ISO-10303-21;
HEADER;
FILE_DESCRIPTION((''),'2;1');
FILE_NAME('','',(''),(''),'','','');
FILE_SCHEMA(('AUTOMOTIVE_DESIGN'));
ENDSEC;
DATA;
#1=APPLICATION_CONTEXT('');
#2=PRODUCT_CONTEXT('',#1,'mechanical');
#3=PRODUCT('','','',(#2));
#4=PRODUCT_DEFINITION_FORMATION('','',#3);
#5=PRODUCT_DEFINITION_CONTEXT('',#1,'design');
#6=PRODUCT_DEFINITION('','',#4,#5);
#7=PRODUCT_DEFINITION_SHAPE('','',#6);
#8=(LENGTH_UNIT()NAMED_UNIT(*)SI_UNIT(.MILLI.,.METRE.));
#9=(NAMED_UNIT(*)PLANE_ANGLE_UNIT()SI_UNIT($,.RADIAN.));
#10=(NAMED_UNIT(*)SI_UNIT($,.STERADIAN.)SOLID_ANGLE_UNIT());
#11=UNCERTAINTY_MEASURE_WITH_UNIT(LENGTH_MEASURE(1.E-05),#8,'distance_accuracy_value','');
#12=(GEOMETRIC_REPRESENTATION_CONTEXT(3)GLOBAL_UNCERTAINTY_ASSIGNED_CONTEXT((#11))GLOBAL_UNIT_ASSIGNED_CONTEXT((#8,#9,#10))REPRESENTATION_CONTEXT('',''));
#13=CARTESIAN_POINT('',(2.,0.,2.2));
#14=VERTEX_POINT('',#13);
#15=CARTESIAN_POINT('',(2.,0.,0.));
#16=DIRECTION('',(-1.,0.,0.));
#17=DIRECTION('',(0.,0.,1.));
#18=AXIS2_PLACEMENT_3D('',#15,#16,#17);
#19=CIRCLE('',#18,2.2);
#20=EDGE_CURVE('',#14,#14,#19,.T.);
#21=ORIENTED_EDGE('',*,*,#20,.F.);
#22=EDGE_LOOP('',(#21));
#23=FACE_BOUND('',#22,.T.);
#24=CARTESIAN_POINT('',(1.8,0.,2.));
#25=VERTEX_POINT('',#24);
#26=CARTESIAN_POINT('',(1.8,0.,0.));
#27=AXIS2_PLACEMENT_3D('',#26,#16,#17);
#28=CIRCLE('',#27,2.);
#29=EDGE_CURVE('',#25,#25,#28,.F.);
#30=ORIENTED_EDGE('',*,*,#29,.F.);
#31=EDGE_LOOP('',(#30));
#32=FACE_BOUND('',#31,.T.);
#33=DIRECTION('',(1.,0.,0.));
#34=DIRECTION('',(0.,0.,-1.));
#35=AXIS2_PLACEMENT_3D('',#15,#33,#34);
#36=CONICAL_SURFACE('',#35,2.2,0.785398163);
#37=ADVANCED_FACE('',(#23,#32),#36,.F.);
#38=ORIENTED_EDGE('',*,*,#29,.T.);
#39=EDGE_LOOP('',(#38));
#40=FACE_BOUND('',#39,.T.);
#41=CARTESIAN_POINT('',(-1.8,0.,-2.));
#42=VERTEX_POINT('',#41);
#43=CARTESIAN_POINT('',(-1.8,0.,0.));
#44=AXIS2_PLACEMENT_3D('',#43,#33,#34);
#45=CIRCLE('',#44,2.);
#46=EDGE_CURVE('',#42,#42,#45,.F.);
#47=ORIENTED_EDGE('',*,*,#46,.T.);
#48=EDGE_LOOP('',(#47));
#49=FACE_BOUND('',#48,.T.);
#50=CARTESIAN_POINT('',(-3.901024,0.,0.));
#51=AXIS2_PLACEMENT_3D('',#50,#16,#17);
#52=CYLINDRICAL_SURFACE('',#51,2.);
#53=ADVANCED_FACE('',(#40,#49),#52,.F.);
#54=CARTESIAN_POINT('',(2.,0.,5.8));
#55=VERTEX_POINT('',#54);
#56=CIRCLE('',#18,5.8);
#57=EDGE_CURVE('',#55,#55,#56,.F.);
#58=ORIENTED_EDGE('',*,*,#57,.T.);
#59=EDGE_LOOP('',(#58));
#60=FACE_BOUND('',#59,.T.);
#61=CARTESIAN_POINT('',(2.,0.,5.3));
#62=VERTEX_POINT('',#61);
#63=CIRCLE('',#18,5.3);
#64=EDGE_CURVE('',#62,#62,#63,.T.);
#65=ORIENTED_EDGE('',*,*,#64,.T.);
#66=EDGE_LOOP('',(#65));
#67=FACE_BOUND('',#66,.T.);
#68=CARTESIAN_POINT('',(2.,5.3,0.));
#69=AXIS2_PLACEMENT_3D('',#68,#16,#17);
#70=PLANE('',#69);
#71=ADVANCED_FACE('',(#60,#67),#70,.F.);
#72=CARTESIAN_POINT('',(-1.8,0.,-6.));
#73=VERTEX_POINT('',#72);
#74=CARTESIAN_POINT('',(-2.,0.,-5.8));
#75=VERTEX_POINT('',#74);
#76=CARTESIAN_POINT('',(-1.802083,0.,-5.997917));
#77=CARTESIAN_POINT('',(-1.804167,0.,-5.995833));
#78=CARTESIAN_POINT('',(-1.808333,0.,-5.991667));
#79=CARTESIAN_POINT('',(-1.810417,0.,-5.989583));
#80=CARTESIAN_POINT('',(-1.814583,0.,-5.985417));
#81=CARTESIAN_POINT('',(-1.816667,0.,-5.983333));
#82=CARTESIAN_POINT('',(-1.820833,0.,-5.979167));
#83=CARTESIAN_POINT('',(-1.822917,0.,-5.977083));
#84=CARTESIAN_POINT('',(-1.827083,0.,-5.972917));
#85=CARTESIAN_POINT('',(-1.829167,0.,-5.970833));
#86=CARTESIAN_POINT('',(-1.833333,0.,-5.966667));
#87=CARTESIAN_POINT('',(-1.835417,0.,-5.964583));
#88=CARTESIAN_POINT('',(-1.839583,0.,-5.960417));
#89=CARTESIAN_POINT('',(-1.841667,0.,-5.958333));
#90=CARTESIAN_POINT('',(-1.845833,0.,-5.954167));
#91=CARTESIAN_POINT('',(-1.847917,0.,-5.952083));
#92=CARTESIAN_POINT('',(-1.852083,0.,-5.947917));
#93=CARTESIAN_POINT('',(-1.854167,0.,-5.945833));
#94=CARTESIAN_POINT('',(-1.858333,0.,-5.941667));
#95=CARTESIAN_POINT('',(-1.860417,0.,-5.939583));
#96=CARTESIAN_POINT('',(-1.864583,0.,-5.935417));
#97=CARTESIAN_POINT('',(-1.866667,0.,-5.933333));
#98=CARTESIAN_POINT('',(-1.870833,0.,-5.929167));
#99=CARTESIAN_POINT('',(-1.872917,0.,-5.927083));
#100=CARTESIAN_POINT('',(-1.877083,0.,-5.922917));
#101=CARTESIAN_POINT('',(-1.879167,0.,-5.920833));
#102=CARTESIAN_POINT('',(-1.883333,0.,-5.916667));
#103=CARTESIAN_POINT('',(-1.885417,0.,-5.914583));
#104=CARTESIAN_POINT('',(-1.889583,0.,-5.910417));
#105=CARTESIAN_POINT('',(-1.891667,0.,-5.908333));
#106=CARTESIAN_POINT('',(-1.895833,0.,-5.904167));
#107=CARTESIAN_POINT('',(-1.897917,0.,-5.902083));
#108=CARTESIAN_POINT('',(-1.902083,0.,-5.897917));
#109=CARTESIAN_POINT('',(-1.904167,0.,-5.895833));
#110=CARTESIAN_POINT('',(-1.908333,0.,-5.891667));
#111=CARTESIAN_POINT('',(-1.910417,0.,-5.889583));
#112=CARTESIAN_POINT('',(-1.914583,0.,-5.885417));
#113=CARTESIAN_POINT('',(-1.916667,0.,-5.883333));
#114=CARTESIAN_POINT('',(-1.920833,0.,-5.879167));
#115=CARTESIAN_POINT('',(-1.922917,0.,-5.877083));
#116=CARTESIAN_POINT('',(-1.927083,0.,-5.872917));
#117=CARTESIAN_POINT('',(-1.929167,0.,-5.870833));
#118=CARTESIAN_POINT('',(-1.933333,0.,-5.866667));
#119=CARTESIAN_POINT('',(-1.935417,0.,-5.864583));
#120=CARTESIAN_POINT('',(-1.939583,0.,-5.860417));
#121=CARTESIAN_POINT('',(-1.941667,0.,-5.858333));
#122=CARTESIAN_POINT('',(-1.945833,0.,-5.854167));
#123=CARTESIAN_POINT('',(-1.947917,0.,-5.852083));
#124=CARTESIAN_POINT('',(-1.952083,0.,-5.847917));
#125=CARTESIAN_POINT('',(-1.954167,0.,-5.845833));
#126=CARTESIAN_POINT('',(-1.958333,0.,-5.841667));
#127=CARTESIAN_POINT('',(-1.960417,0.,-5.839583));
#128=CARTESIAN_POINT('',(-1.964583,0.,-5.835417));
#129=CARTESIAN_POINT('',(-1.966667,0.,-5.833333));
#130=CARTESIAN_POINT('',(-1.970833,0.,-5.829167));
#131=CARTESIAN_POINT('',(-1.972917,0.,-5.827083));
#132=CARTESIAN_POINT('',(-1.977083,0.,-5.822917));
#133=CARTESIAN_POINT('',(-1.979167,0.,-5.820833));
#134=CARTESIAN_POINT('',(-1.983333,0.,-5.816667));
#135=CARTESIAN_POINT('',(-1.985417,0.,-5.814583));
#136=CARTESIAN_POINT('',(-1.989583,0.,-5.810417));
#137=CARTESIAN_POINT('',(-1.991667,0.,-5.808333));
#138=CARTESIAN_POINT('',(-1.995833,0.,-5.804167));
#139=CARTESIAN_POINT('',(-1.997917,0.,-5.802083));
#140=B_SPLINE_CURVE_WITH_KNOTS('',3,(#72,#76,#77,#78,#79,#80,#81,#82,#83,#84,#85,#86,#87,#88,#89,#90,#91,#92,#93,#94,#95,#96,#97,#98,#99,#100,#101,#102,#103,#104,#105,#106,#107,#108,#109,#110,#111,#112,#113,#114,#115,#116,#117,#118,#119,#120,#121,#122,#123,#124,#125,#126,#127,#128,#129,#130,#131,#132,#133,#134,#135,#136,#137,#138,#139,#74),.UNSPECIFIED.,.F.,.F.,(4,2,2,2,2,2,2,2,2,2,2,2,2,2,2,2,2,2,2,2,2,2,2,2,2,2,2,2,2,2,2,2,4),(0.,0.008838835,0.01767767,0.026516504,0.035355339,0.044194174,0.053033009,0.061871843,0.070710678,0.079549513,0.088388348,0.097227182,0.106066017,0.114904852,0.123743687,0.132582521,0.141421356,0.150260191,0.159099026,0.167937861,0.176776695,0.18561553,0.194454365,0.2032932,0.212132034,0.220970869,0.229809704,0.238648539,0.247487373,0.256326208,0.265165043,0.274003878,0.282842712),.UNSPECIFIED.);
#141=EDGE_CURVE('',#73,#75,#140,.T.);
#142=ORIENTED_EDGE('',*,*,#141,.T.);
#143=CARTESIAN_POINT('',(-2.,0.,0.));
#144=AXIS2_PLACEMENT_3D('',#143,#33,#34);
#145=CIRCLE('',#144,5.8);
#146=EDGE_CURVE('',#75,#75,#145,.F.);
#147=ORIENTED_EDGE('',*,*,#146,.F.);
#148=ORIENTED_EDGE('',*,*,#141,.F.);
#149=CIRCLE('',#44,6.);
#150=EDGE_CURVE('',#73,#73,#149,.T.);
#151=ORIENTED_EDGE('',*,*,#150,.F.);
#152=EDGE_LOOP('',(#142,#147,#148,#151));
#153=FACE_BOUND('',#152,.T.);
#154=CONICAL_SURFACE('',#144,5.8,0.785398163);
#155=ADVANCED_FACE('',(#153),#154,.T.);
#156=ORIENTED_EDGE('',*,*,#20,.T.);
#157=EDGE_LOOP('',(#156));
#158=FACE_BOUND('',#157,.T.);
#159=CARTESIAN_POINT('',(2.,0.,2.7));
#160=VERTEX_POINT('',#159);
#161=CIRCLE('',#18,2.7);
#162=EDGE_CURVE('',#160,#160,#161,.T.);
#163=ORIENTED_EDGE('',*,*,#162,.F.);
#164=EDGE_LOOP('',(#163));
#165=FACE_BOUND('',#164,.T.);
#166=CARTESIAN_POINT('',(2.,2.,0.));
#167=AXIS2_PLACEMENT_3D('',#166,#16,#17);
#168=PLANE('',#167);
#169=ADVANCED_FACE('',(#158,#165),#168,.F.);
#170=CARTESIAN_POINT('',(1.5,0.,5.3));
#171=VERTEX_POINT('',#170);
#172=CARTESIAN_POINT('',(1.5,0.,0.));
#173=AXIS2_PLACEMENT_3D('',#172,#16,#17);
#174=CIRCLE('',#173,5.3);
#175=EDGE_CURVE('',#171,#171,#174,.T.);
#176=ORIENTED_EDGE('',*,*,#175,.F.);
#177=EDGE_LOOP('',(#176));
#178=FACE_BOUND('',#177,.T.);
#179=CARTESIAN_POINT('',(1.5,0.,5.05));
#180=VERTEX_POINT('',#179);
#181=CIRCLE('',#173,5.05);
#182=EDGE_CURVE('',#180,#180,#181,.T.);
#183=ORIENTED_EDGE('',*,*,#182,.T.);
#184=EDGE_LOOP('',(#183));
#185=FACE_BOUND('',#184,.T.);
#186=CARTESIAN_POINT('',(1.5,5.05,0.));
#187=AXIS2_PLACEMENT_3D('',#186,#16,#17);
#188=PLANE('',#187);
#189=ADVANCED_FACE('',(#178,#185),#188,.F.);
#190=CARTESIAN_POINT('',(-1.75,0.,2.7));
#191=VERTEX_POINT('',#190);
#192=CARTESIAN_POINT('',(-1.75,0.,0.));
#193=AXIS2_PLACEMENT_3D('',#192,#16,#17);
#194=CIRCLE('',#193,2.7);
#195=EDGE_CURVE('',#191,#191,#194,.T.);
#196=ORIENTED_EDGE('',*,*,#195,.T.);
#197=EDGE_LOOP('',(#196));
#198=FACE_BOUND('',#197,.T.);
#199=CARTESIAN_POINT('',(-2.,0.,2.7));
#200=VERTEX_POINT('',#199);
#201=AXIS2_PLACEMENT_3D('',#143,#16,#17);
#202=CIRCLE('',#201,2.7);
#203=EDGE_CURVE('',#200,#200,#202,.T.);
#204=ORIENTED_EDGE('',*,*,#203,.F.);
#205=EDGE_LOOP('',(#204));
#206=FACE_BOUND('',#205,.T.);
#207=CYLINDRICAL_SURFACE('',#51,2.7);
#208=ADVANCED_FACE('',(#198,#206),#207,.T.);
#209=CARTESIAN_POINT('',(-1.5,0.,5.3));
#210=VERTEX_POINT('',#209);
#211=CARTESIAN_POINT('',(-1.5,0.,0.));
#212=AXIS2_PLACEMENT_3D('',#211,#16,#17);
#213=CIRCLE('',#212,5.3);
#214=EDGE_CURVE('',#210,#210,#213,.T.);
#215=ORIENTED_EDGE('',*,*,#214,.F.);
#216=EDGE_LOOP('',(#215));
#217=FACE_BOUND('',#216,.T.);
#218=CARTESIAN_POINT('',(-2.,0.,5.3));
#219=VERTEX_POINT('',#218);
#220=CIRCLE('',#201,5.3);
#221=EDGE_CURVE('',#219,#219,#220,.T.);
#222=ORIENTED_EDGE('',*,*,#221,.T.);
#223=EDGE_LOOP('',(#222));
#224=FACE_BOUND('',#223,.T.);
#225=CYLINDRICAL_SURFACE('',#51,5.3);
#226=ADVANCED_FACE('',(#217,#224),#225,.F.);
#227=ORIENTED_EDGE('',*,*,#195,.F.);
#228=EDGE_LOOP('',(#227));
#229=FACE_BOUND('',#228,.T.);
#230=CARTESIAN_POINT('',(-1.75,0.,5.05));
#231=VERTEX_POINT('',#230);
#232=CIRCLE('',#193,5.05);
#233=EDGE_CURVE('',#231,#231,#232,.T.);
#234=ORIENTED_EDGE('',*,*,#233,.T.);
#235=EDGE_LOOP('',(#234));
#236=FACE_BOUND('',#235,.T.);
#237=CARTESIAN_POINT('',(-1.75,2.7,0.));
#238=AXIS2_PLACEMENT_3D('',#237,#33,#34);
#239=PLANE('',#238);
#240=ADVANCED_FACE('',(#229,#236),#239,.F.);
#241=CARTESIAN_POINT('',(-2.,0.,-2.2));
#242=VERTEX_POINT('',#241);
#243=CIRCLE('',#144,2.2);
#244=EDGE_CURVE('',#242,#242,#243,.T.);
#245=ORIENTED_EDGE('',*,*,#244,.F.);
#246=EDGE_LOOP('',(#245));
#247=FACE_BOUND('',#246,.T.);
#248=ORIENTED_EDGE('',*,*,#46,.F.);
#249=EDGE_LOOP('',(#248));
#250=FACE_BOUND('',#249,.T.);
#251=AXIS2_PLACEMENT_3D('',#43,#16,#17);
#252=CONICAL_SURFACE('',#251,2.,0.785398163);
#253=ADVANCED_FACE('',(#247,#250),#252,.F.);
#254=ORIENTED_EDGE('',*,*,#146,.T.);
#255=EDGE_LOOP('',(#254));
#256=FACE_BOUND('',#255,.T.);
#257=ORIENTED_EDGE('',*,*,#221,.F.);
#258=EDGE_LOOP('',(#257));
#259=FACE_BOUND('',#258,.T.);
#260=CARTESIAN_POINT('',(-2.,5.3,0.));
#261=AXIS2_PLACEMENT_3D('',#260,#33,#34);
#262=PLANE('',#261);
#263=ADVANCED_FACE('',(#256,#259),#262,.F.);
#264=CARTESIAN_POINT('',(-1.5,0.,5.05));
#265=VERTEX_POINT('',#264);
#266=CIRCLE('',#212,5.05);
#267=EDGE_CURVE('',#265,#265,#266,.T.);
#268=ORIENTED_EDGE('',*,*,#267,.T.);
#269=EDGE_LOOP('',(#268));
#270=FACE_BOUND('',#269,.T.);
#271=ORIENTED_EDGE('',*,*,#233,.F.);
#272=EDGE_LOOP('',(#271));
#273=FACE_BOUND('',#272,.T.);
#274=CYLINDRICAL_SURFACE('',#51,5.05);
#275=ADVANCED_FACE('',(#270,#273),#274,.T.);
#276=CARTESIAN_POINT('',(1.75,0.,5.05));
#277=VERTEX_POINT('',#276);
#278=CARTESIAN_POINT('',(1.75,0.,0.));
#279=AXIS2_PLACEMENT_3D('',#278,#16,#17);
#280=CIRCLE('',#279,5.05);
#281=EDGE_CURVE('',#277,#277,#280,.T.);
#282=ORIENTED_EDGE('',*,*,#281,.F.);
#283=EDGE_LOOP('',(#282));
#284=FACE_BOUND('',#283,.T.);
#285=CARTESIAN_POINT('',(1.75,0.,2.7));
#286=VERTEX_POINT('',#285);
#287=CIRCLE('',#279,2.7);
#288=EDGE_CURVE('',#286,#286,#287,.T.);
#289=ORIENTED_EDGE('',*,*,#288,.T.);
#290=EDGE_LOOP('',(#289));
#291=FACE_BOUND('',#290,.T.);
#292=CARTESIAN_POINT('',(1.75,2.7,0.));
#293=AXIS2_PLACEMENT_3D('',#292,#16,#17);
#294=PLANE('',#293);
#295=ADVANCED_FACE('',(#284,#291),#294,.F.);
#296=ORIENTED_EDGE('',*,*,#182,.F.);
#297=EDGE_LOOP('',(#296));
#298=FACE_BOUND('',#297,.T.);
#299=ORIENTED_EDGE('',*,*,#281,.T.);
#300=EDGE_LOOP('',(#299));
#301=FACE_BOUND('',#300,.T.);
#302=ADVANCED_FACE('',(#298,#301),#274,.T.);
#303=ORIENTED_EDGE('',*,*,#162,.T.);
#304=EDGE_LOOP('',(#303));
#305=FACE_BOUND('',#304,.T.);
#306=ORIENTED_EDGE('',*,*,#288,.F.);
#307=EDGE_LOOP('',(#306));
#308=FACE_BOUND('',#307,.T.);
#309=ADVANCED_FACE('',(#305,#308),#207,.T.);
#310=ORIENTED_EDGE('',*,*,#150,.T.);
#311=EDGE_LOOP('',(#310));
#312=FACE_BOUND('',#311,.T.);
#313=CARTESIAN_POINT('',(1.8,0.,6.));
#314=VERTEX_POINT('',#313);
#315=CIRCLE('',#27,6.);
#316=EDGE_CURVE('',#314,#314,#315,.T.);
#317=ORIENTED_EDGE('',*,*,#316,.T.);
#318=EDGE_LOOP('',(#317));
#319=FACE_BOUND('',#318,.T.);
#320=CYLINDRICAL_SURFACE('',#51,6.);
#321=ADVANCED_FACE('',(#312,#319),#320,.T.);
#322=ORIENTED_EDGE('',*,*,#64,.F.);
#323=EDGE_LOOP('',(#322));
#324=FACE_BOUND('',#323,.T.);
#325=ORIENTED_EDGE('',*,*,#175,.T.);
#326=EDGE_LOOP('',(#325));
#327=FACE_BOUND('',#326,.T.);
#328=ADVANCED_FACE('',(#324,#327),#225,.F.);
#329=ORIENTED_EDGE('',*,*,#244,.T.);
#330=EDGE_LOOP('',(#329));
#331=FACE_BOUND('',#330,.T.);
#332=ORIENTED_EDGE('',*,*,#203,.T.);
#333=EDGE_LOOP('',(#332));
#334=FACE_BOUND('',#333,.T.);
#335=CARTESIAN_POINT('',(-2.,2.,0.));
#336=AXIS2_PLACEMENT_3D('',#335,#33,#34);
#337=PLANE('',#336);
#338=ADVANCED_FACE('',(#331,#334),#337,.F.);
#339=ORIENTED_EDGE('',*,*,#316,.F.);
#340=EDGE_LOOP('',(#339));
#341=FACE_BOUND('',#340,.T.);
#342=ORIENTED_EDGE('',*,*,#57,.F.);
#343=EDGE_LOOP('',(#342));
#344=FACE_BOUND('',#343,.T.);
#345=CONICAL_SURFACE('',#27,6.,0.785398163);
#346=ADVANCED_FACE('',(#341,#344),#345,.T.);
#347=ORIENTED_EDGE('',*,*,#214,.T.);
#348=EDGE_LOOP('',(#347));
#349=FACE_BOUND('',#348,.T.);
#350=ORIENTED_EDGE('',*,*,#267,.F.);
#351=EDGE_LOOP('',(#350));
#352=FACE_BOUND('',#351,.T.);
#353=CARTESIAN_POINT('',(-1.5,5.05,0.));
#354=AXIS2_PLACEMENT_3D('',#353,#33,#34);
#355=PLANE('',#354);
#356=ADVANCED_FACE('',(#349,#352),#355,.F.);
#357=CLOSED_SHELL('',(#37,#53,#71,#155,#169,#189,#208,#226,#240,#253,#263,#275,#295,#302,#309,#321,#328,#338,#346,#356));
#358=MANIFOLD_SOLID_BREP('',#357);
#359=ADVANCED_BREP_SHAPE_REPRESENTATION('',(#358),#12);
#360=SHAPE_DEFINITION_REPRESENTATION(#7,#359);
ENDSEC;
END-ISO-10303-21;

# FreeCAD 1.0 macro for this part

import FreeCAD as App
import Part
import Sketcher
Q = App.Units.Quantity


def edges_at(feature, points):
    """Names of the edges that pass closest to the given points."""
    edges = feature.Shape.Edges
    near = lambda p: min(range(len(edges)), key=lambda i: edges[i].distToShape(Part.Vertex(*p))[0])
    return sorted({f"Edge{near(p) + 1}" for p in points})


def add_polygon(sketch, points):
    """Adds a closed chain of lines whose ends are joined by coincident constraints."""
    first, n = sketch.GeometryCount, len(points)
    for a, b in zip(points, points[1:] + points[:1]):
        sketch.addGeometry(Part.LineSegment(App.Vector(*a, 0), App.Vector(*b, 0)), False)
    for i in range(n):
        sketch.addConstraint(Sketcher.Constraint("Coincident", first + i, 2, first + (i + 1) % n, 1))

doc = App.newDocument("Part")
body = doc.addObject("PartDesign::Body", "Body")

# Sketch on XY plane
sketch1 = body.newObject("Sketcher::SketchObject", "Sketch")
sketch1.AttachmentSupport = (doc.getObject("XY_Plane"), [""])
sketch1.MapMode = "FlatFace"
add_polygon(sketch1, [(-2, 2), (2, 2), (2, 2.7), (1.75, 2.7), (1.75, 5.05), (1.5, 5.05), (1.5, 5.3), (2, 5.3), (2, 6), (-2, 6), (-2, 5.3), (-1.5, 5.3), (-1.5, 5.05), (-1.75, 5.05), (-1.75, 2.7), (-2, 2.7)])  # lines 0-15
sketch1.addConstraint(Sketcher.Constraint("Horizontal", 0))
sketch1.addConstraint(Sketcher.Constraint("Vertical", 1))
sketch1.addConstraint(Sketcher.Constraint("Horizontal", 2))
sketch1.addConstraint(Sketcher.Constraint("Vertical", 3))
sketch1.addConstraint(Sketcher.Constraint("Horizontal", 4))
sketch1.addConstraint(Sketcher.Constraint("Vertical", 5))
sketch1.addConstraint(Sketcher.Constraint("Horizontal", 6))
sketch1.addConstraint(Sketcher.Constraint("Vertical", 7))
sketch1.addConstraint(Sketcher.Constraint("Horizontal", 8))
sketch1.addConstraint(Sketcher.Constraint("Vertical", 9))
sketch1.addConstraint(Sketcher.Constraint("Horizontal", 10))
sketch1.addConstraint(Sketcher.Constraint("Vertical", 11))
sketch1.addConstraint(Sketcher.Constraint("Horizontal", 12))
sketch1.addConstraint(Sketcher.Constraint("Vertical", 13))
sketch1.addConstraint(Sketcher.Constraint("Horizontal", 14))
sketch1.addConstraint(Sketcher.Constraint("Vertical", 15))
sketch1.addConstraint(Sketcher.Constraint("Symmetric", 6, 2, 9, 2, -2))
sketch1.addConstraint(Sketcher.Constraint("Symmetric", 4, 2, 11, 2, -2))
sketch1.addConstraint(Sketcher.Constraint("Symmetric", 2, 2, 13, 2, -2))
sketch1.addConstraint(Sketcher.Constraint("Vertical", 1, 2, 6, 2))
sketch1.addConstraint(Sketcher.Constraint("Vertical", 9, 2, 14, 2))
sketch1.addConstraint(Sketcher.Constraint("Equal", 2, 4))
sketch1.addConstraint(Sketcher.Constraint("Equal", 14, 5))
sketch1.addConstraint(Sketcher.Constraint("Equal", 1, 7))
sketch1.addConstraint(Sketcher.Constraint("DistanceX", 0, 1, 0, 2, Q("4 mm")))
sketch1.addConstraint(Sketcher.Constraint("DistanceX", 6, 1, 6, 2, Q("0.5 mm")))
sketch1.addConstraint(Sketcher.Constraint("DistanceY", 1, 1, 1, 2, Q("0.7 mm")))
sketch1.addConstraint(Sketcher.Constraint("DistanceY", -1, 1, 0, 2, Q("2 mm")))
sketch1.addConstraint(Sketcher.Constraint("DistanceY", -1, 1, 7, 2, Q("6 mm")))
revolution = body.newObject("PartDesign::Revolution", "Revolution")
revolution.Profile = sketch1
revolution.ReferenceAxis = (sketch1, ["H_Axis"])
revolution.Angle = 360
doc.recompute()

chamfer = body.newObject("PartDesign::Chamfer", "Chamfer")
chamfer.Base = (revolution, edges_at(revolution, [
    (-2, 0, -6),
    (2, 0, -6),
    (2, 0, -2),
    (-2, 0, -2),
]))
chamfer.Size = 0.2

doc.recompute()
